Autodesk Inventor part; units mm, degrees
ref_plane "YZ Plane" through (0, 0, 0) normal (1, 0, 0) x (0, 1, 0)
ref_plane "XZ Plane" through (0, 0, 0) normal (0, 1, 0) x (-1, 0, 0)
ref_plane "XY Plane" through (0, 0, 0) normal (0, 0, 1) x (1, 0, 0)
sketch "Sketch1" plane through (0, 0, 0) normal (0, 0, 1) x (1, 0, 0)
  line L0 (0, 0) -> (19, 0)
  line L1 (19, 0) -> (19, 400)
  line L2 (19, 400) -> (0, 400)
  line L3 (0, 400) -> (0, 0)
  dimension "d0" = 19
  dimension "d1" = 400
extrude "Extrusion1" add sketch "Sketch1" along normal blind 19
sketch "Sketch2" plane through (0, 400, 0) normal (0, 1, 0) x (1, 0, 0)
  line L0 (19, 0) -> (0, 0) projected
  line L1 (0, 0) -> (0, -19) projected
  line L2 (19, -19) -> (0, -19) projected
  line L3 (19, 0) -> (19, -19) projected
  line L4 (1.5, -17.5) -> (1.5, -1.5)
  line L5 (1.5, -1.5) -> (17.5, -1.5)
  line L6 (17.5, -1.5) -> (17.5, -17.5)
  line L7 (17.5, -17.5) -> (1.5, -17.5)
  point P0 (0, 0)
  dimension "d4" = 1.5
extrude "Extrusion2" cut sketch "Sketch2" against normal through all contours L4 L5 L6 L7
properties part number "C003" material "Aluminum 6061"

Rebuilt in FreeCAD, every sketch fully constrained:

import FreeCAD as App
import Part
import Sketcher

doc = App.newDocument("Part")
params = doc.addObject("Spreadsheet::Sheet", "Params")
for row, (alias, value) in enumerate([
    ("sketch1_width", "19 mm"),
    ("sketch1_height", "400 mm"),
    ("pad1_length", "19 mm"),
    ("sketch2_width", "16 mm"),
], start=1):
    params.set(f"A{row}", alias)
    params.set(f"B{row}", "=" + value)
    params.setAlias(f"B{row}", alias)

body = doc.addObject("PartDesign::Body", "Body")

sketch1 = doc.addObject("Sketcher::SketchObject", "Sketch")
body.addObject(sketch1)
sketch1.AttachmentSupport = (doc.XY_Plane, [""])
sketch1.MapMode = "FlatFace"
sketch1.addGeometry([
    Part.LineSegment(App.Vector(0, 400, 0), App.Vector(0, 0, 0)),
    Part.LineSegment(App.Vector(0, 0, 0), App.Vector(19, 0, 0)),
    Part.LineSegment(App.Vector(19, 0, 0), App.Vector(19, 400, 0)),
    Part.LineSegment(App.Vector(19, 400, 0), App.Vector(0, 400, 0)),
], False)
sketch1.addConstraint([
    Sketcher.Constraint("Coincident", 0, 2, 1, 1),
    Sketcher.Constraint("Coincident", 1, 2, 2, 1),
    Sketcher.Constraint("Coincident", 2, 2, 3, 1),
    Sketcher.Constraint("Coincident", 3, 2, 0, 1),
    Sketcher.Constraint("Vertical", 0),
    Sketcher.Constraint("Horizontal", 1),
    Sketcher.Constraint("Vertical", 2),
    Sketcher.Constraint("Horizontal", 3),
    Sketcher.Constraint("Coincident", 0, 2, -1, 1),
    Sketcher.Constraint("DistanceX", 1, 1, 1, 2, 19.0),
    Sketcher.Constraint("DistanceY", 0, 2, 0, 1, 400.0),
])
sketch1.setExpression("Constraints[9]", "Params.sketch1_width")
sketch1.setExpression("Constraints[10]", "Params.sketch1_height")
pad1 = doc.addObject("PartDesign::Pad", "Pad")
body.addObject(pad1)
pad1.Profile = sketch1
pad1.setExpression("Length", "Params.pad1_length")

sketch2 = doc.addObject("Sketcher::SketchObject", "Sketch001")
body.addObject(sketch2)
sketch2.AttachmentSupport = (doc.XZ_Plane, [""])
sketch2.MapMode = "FlatFace"
sketch2.AttachmentOffset = App.Placement(App.Vector(0, 0, -400), App.Rotation())
sketch2.addGeometry([
    Part.LineSegment(App.Vector(2, 2, 0), App.Vector(2, 18, 0)),
    Part.LineSegment(App.Vector(2, 18, 0), App.Vector(18, 18, 0)),
    Part.LineSegment(App.Vector(18, 18, 0), App.Vector(18, 2, 0)),
    Part.LineSegment(App.Vector(18, 2, 0), App.Vector(2, 2, 0)),
], False)
sketch2.addConstraint([
    Sketcher.Constraint("Coincident", 0, 2, 1, 1),
    Sketcher.Constraint("Coincident", 1, 2, 2, 1),
    Sketcher.Constraint("Coincident", 2, 2, 3, 1),
    Sketcher.Constraint("Coincident", 3, 2, 0, 1),
    Sketcher.Constraint("Vertical", 0),
    Sketcher.Constraint("Horizontal", 1),
    Sketcher.Constraint("Vertical", 2),
    Sketcher.Constraint("Horizontal", 3),
    Sketcher.Constraint("Equal", 3, 0),
    Sketcher.Constraint("DistanceX", -1, 1, 0, 2, 1.5),
    Sketcher.Constraint("DistanceY", -1, 1, 2, 2, 1.5),
    Sketcher.Constraint("DistanceX", 1, 1, 1, 2, 16.0),
])
sketch2.setExpression("Constraints[11]", "Params.sketch2_width")
pocket1 = doc.addObject("PartDesign::Pocket", "Pocket")
body.addObject(pocket1)
pocket1.Profile = sketch2
pocket1.Type = "ThroughAll"
pocket1.Reversed = True

doc.recompute()
